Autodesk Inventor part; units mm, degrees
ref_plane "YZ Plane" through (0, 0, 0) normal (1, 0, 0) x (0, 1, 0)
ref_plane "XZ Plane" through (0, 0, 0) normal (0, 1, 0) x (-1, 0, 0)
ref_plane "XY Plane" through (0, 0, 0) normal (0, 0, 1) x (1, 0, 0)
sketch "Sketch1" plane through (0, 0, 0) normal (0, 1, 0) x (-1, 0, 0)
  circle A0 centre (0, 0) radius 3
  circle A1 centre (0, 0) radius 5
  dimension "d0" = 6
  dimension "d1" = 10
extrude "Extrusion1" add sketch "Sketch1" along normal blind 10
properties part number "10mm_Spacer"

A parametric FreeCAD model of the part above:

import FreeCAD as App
import Part
import Sketcher
from FreeCAD import Vector
Q = App.Units.Quantity

doc = App.newDocument("Part")
body = doc.addObject("PartDesign::Body", "Body")

# Sketch on XZ plane
sketch1 = body.newObject("Sketcher::SketchObject", "Sketch")
sketch1.AttachmentSupport = (doc.getObject("XZ_Plane"), [""])
sketch1.MapMode = "FlatFace"
sketch1.addGeometry([
    Part.Circle(Vector(0, 0, 0), Vector(0, 0, 1), 5),
    Part.Circle(Vector(0, 0, 0), Vector(0, 0, 1), 3),
], False)
sketch1.addConstraint([
    Sketcher.Constraint("Coincident", 0, 3, -1, 1),
    Sketcher.Constraint("Coincident", 1, 3, -1, 1),
    Sketcher.Constraint("Diameter", 0, Q("10 mm")),
    Sketcher.Constraint("Diameter", 1, Q("6 mm")),
])
pad1 = body.newObject("PartDesign::Pad", "Pad")
pad1.Profile = sketch1
pad1.Length = 10
pad1.Reversed = True

doc.recompute()
